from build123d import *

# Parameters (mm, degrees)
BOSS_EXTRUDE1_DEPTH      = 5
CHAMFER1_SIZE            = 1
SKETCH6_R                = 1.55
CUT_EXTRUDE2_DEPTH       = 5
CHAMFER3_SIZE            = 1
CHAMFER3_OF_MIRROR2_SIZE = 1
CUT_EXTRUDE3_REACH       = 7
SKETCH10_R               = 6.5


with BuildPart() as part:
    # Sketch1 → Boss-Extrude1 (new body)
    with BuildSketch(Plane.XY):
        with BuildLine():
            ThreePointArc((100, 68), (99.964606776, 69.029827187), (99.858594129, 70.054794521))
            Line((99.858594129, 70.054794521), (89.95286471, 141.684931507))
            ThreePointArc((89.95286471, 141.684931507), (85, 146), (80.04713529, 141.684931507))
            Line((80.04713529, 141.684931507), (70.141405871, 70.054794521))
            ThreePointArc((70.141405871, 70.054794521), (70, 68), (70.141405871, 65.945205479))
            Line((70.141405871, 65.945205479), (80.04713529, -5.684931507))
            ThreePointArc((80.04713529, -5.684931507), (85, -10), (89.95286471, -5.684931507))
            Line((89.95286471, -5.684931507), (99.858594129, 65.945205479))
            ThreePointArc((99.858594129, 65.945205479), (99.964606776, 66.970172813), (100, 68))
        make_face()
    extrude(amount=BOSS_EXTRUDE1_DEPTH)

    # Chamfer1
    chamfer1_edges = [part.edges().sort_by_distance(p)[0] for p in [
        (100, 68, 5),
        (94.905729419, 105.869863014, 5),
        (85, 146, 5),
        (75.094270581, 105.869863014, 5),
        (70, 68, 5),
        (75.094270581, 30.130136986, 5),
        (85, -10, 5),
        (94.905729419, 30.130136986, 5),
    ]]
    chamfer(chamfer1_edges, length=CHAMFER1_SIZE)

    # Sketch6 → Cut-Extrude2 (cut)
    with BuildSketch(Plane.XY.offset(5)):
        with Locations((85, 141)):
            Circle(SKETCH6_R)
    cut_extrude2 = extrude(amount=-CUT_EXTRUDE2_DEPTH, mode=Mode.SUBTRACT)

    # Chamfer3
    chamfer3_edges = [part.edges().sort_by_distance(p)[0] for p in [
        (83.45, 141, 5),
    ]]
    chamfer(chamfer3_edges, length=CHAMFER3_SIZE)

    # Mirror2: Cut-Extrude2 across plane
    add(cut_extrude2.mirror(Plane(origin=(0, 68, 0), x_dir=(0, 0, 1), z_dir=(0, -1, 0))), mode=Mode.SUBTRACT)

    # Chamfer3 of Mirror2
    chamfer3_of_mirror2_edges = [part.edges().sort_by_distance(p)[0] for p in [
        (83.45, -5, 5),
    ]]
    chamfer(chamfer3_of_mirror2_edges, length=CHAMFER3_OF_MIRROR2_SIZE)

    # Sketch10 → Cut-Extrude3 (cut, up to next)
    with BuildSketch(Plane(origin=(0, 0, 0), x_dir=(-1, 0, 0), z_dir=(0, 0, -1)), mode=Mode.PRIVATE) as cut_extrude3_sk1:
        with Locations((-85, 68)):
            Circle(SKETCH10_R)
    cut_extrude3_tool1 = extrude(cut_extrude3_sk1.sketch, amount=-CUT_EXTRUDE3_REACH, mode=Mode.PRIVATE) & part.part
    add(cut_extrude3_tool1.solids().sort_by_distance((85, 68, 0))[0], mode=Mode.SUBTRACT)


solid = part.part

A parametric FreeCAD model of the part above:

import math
import FreeCAD as App
import Part
import Sketcher


def edges_at(feature, points):
    """Names of the edges that pass closest to the given points."""
    edges = feature.Shape.Edges
    near = lambda p: min(range(len(edges)), key=lambda i: edges[i].distToShape(Part.Vertex(*p))[0])
    return sorted({f"Edge{near(p) + 1}" for p in points})

doc = App.newDocument("Part")
body = doc.addObject("PartDesign::Body", "Body")

sketch1 = doc.addObject("Sketcher::SketchObject", "Sketch")
body.addObject(sketch1)
sketch1.AttachmentSupport = (doc.XY_Plane, [""])
sketch1.MapMode = "FlatFace"
sketch1.addGeometry(Part.ArcOfCircle(Part.Circle(App.Vector(85, 68, 0), App.Vector(0, 0, 1), 15), math.radians(0), math.radians(7.87)), False)
sketch1.addGeometry(Part.LineSegment(App.Vector(99.9, 70.1, 0), App.Vector(90, 141.7, 0)), False)
sketch1.addGeometry(Part.ArcOfCircle(Part.Circle(App.Vector(85, 141, 0), App.Vector(0, 0, 1), 5), math.radians(8), math.radians(172)), False)
sketch1.addGeometry(Part.LineSegment(App.Vector(80, 141.7, 0), App.Vector(70.1, 70.1, 0)), False)
sketch1.addGeometry(Part.ArcOfCircle(Part.Circle(App.Vector(85, 68, 0), App.Vector(0, 0, 1), 15), math.radians(172.13), math.radians(187.87)), False)
sketch1.addGeometry(Part.LineSegment(App.Vector(70.1, 65.9, 0), App.Vector(80, -5.7, 0)), False)
sketch1.addGeometry(Part.ArcOfCircle(Part.Circle(App.Vector(85, -5, 0), App.Vector(0, 0, 1), 5), math.radians(-172), math.radians(-8)), False)
sketch1.addGeometry(Part.LineSegment(App.Vector(90, -5.7, 0), App.Vector(99.9, 65.9, 0)), False)
sketch1.addGeometry(Part.ArcOfCircle(Part.Circle(App.Vector(85, 68, 0), App.Vector(0, 0, 1), 15), math.radians(-7.87), math.radians(0)), False)
sketch1.addConstraint(Sketcher.Constraint("Tangent", 0, 2, 1, 1))
sketch1.addConstraint(Sketcher.Constraint("Tangent", 1, 2, 2, 1))
sketch1.addConstraint(Sketcher.Constraint("Tangent", 2, 2, 3, 1))
sketch1.addConstraint(Sketcher.Constraint("Tangent", 3, 2, 4, 1))
sketch1.addConstraint(Sketcher.Constraint("Tangent", 4, 2, 5, 1))
sketch1.addConstraint(Sketcher.Constraint("Tangent", 5, 2, 6, 1))
sketch1.addConstraint(Sketcher.Constraint("Tangent", 6, 2, 7, 1))
sketch1.addConstraint(Sketcher.Constraint("Tangent", 7, 2, 8, 1))
sketch1.addConstraint(Sketcher.Constraint("Tangent", 8, 2, 0, 1))
sketch1.addConstraint(Sketcher.Constraint("Coincident", 4, 3, 0, 3))
sketch1.addConstraint(Sketcher.Constraint("Equal", 0, 4))
sketch1.addConstraint(Sketcher.Constraint("Equal", 2, 6))
sketch1.addConstraint(Sketcher.Constraint("Equal", 4, 8))
sketch1.addConstraint(Sketcher.Constraint("Parallel", 1, 5))
sketch1.addConstraint(Sketcher.Constraint("Parallel", 3, 7))
sketch1.addConstraint(Sketcher.Constraint("Horizontal", 1, 2, 2, 2))
sketch1.addConstraint(Sketcher.Constraint("Horizontal", 4, 3, 8, 2))
sketch1.addConstraint(Sketcher.Constraint("Radius", 0, 15.0))
sketch1.addConstraint(Sketcher.Constraint("Radius", 2, 5.0))
sketch1.addConstraint(Sketcher.Constraint("DistanceX", -1, 1, 0, 3, 85.0))
sketch1.addConstraint(Sketcher.Constraint("DistanceY", -1, 1, 0, 3, 68.0))
sketch1.addConstraint(Sketcher.Constraint("DistanceY", -1, 1, 2, 3, 141.0))
pad1 = doc.addObject("PartDesign::Pad", "Pad")
body.addObject(pad1)
pad1.Profile = sketch1
pad1.Length = 5
doc.recompute()

chamfer = doc.addObject("PartDesign::Chamfer", "Chamfer")
body.addObject(chamfer)
chamfer.Base = (pad1, edges_at(pad1, [
    (100, 68, 2.5),
    (94.906, 105.87, 5),
    (85, 146, 5),
    (75.094, 105.87, 5),
    (70, 68, 5),
    (75.094, 30.13, 5),
    (85, -10, 5),
    (94.906, 30.13, 5),
]))
chamfer.Size = 1

sketch2 = doc.addObject("Sketcher::SketchObject", "Sketch001")
body.addObject(sketch2)
sketch2.AttachmentSupport = (doc.XY_Plane, [""])
sketch2.MapMode = "FlatFace"
sketch2.AttachmentOffset = App.Placement(App.Vector(0, 0, 5), App.Rotation())
sketch2.addGeometry(Part.Circle(App.Vector(85, 141, 0), App.Vector(0, 0, 1), 1.6), False)
sketch2.addConstraint(Sketcher.Constraint("Diameter", 0, 3.1))
sketch2.addConstraint(Sketcher.Constraint("DistanceX", -1, 1, 0, 3, 85.0))
sketch2.addConstraint(Sketcher.Constraint("DistanceY", -1, 1, 0, 3, 141.0))
pocket1 = doc.addObject("PartDesign::Pocket", "Pocket")
body.addObject(pocket1)
pocket1.Profile = sketch2
pocket1.Length = 5
doc.recompute()

chamfer2 = doc.addObject("PartDesign::Chamfer", "Chamfer001")
body.addObject(chamfer2)
chamfer2.Base = (pocket1, edges_at(pocket1, [(83.45, 141, 5)]))
chamfer2.Size = 1
doc.recompute()

datumplane = doc.addObject("PartDesign::Plane", "DatumPlane")
body.addObject(datumplane)
datumplane.AttachmentSupport = (doc.XZ_Plane, [""])
datumplane.MapMode = "FlatFace"
datumplane.AttachmentOffset = App.Placement(App.Vector(0, 0, -68), App.Rotation())
mirrored = doc.addObject("PartDesign::Mirrored", "Mirrored")
body.addObject(mirrored)
mirrored.Originals = [pocket1]
mirrored.MirrorPlane = (datumplane, [""])
body.Tip = mirrored
doc.recompute()

chamfer3 = doc.addObject("PartDesign::Chamfer", "Chamfer002")
body.addObject(chamfer3)
chamfer3.Base = (mirrored, edges_at(mirrored, [(83.45, -5, 5)]))
chamfer3.Size = 1

sketch3 = doc.addObject("Sketcher::SketchObject", "Sketch002")
body.addObject(sketch3)
sketch3.AttachmentSupport = (doc.XY_Plane, [""])
sketch3.MapMode = "FlatFace"
sketch3.addGeometry(Part.Circle(App.Vector(85, 68, 0), App.Vector(0, 0, 1), 6), False)
sketch3.addConstraint(Sketcher.Constraint("Diameter", 0, 13.0))
sketch3.addConstraint(Sketcher.Constraint("DistanceX", -1, 1, 0, 3, 85.0))
sketch3.addConstraint(Sketcher.Constraint("DistanceY", -1, 1, 0, 3, 68.0))
pocket2 = doc.addObject("PartDesign::Pocket", "Pocket001")
body.addObject(pocket2)
pocket2.Profile = sketch3
pocket2.Type = "UpToFirst"
pocket2.Reversed = True

doc.recompute()
